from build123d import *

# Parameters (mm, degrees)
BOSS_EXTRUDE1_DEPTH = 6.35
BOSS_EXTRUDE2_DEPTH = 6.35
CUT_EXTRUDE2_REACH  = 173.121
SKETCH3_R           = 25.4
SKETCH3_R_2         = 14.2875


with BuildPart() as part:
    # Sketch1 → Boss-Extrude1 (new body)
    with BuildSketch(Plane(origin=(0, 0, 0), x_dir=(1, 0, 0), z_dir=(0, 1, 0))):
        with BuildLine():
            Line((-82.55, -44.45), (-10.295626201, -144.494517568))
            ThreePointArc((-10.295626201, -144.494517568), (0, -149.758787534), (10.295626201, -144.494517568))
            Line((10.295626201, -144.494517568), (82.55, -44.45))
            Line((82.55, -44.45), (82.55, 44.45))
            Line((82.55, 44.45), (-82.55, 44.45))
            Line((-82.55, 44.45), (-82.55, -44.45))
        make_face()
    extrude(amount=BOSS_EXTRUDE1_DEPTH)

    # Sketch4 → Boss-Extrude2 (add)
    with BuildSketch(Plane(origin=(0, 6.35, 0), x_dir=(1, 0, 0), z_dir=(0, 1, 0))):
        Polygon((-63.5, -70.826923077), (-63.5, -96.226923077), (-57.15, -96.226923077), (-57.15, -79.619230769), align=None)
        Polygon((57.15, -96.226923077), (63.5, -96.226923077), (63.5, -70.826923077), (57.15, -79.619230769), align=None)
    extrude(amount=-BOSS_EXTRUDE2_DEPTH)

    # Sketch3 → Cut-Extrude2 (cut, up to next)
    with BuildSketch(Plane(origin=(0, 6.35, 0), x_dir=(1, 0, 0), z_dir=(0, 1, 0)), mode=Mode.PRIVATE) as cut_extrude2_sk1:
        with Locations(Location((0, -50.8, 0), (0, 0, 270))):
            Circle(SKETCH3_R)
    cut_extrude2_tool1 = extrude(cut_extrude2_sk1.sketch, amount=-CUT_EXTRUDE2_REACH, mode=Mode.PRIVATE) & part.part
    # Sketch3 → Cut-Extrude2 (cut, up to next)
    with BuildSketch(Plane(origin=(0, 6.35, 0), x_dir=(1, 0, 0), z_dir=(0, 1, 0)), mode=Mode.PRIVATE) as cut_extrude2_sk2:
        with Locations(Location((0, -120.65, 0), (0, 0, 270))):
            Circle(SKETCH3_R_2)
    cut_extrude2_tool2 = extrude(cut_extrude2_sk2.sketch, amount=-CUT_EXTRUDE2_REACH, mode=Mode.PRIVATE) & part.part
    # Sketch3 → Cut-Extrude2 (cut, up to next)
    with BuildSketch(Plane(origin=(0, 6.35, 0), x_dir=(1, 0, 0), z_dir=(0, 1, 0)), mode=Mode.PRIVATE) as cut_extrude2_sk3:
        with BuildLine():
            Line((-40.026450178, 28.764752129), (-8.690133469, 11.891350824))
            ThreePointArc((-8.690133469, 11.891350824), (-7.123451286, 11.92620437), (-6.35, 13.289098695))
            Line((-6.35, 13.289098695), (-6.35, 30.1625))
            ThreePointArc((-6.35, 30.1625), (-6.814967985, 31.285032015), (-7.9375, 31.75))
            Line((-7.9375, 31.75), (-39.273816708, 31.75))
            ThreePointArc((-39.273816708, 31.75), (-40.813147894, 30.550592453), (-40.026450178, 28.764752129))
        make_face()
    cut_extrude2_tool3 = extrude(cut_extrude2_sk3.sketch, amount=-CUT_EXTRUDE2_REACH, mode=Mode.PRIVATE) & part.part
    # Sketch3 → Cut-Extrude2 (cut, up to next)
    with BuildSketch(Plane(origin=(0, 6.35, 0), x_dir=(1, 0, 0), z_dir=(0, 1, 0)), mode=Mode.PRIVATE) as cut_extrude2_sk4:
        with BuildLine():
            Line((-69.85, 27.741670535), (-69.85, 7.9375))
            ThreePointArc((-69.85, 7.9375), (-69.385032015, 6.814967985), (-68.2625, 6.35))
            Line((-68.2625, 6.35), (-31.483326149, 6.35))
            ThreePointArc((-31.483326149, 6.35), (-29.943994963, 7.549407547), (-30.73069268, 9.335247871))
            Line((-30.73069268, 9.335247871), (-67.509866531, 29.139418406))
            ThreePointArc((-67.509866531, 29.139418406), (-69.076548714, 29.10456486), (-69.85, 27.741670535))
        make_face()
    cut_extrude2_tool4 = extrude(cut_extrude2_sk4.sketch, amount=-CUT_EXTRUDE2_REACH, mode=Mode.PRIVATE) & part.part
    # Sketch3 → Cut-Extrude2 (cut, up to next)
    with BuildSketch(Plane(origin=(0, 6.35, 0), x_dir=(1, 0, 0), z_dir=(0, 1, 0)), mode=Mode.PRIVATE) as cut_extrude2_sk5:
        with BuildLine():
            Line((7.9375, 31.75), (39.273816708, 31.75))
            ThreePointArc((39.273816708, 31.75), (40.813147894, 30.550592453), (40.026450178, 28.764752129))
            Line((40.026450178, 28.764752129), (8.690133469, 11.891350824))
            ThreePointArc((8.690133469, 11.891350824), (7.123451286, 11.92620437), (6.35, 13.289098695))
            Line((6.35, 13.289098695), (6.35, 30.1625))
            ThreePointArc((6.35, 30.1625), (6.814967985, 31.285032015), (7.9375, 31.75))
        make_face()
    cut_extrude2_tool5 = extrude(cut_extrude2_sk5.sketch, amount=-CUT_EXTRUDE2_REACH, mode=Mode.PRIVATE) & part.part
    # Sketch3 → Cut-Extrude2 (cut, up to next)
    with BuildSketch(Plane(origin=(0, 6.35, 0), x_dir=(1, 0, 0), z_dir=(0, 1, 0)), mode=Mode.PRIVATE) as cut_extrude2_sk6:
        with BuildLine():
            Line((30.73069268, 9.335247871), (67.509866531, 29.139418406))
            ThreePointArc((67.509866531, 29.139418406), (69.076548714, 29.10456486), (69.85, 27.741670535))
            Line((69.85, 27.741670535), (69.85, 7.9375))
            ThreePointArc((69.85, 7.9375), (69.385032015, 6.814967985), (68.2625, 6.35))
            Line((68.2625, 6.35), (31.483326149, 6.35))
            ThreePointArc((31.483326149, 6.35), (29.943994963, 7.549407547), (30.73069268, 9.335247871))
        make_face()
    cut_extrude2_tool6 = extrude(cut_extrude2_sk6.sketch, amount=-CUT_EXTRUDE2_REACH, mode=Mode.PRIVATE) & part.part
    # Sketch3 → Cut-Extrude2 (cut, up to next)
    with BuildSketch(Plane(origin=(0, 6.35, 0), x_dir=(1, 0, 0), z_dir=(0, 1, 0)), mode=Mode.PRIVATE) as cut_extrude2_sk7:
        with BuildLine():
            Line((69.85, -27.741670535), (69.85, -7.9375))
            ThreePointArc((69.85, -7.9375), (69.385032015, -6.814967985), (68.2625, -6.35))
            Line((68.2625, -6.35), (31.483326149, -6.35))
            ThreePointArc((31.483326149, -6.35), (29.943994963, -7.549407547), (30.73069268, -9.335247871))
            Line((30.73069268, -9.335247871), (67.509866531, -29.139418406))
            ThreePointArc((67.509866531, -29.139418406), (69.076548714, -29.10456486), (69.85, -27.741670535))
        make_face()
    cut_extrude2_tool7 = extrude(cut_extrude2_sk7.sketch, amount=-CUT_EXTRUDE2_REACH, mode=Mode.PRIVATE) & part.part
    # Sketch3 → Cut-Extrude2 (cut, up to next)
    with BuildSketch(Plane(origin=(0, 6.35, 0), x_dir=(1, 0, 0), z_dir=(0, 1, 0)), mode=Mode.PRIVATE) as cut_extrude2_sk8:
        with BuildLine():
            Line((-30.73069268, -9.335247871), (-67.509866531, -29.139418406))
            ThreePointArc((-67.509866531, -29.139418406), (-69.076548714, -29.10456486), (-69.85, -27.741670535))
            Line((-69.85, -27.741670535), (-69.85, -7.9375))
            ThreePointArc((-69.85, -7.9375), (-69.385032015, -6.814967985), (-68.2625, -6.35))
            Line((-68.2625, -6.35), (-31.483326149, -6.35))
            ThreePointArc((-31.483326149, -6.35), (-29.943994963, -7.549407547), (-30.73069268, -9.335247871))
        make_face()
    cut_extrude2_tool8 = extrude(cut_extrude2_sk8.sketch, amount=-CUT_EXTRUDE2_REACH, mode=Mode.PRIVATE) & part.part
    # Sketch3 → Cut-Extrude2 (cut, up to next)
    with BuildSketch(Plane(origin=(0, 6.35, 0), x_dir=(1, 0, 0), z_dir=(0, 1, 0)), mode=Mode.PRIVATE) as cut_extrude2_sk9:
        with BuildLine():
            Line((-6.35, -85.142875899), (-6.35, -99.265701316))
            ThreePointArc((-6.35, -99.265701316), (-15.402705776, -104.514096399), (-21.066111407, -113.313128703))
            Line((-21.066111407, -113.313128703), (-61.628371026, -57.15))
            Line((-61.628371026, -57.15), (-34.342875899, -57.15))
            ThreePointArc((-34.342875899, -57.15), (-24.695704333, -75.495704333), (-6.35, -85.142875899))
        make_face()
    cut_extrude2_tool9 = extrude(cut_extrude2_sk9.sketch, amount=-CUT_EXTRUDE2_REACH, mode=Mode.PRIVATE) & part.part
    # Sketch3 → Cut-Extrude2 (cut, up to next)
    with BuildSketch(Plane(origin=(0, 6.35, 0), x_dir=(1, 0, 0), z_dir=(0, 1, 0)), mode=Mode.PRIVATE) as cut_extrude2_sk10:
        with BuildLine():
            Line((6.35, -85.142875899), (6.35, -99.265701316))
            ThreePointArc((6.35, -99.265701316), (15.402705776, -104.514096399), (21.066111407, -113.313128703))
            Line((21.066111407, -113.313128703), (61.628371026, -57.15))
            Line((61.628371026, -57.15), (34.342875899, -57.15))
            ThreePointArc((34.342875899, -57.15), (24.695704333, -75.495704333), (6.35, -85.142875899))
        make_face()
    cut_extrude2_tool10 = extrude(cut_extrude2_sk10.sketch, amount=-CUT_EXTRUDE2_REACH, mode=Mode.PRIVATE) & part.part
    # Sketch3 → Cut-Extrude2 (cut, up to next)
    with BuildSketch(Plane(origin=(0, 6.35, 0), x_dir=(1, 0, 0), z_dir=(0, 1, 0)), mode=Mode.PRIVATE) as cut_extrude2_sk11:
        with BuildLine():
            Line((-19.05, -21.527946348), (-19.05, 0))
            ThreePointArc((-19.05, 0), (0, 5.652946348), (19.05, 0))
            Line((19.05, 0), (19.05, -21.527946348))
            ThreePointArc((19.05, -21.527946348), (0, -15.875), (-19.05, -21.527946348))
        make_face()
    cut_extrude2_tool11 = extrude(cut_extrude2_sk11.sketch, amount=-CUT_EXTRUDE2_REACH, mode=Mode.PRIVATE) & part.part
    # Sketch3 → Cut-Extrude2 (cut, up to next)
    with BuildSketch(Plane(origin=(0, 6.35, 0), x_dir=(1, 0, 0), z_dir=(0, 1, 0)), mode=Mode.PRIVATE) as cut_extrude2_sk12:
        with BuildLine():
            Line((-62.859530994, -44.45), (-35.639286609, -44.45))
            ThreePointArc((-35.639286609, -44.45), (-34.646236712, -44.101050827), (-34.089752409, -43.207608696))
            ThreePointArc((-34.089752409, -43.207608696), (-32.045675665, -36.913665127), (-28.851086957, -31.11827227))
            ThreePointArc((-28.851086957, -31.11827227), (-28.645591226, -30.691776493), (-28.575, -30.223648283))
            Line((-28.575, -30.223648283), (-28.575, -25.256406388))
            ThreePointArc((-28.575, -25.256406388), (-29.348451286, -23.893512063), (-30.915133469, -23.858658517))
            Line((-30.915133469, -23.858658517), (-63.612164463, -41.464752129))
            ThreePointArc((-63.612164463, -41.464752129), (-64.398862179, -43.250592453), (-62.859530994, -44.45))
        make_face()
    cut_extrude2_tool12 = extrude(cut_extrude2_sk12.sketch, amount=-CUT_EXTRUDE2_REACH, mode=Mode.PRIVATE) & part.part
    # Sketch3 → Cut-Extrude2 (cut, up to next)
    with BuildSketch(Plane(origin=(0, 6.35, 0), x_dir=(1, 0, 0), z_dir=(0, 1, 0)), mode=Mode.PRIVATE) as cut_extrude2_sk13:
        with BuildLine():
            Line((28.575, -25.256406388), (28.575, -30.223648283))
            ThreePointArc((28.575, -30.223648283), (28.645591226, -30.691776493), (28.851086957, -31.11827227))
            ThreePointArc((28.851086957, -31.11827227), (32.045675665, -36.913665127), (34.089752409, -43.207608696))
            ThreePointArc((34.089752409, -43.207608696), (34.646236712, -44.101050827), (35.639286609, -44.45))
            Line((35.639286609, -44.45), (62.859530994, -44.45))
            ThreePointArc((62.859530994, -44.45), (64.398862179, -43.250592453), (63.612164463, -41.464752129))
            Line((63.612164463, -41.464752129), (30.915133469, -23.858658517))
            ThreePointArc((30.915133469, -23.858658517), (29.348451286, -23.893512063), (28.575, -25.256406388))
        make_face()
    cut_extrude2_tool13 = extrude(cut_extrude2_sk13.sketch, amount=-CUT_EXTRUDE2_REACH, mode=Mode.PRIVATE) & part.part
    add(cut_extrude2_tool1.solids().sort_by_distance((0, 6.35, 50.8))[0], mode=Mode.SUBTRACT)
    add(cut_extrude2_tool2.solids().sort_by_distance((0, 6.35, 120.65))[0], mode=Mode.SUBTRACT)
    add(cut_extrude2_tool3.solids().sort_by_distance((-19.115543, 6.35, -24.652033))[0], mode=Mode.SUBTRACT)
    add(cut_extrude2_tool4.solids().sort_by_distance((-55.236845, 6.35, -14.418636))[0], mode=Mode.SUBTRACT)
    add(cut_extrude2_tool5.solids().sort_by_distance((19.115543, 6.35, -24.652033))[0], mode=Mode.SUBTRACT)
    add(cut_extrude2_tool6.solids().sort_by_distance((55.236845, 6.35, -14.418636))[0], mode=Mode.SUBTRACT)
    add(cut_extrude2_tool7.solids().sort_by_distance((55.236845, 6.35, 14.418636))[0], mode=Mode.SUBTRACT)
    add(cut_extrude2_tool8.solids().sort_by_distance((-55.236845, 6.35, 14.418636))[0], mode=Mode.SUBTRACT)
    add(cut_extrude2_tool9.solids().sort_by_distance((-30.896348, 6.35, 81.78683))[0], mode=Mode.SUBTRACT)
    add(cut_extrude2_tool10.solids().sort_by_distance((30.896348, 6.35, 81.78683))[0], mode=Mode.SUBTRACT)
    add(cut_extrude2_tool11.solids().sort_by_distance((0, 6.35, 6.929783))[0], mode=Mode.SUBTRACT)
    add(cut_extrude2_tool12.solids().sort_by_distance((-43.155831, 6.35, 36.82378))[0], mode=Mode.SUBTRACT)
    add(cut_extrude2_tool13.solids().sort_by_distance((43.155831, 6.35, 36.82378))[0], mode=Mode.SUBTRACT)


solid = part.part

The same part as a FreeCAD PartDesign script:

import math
import FreeCAD as App
import Part
import Sketcher

V = App.Vector
Q = App.Units.Quantity


def add_polygon(sketch, points):
    """Adds a closed chain of lines whose ends are joined by coincident constraints."""
    first, n = sketch.GeometryCount, len(points)
    for a, b in zip(points, points[1:] + points[:1]):
        sketch.addGeometry(Part.LineSegment(App.Vector(*a, 0), App.Vector(*b, 0)), False)
    for i in range(n):
        sketch.addConstraint(Sketcher.Constraint("Coincident", first + i, 2, first + (i + 1) % n, 1))

doc = App.newDocument("Part")
body = doc.addObject("PartDesign::Body", "Body")

# Sketch on XZ plane
sketch1 = body.newObject("Sketcher::SketchObject", "Sketch")
sketch1.AttachmentSupport = (doc.getObject("XZ_Plane"), [""])
sketch1.MapMode = "FlatFace"
sketch1.addGeometry(Part.LineSegment(V(-83, 44, 0), V(-10, 144, 0)), False)
sketch1.addGeometry(Part.ArcOfCircle(Part.Circle(V(0, 137, 0), V(0, 0, 1), 13), math.radians(36), math.radians(144)), False)
sketch1.addGeometry(Part.LineSegment(V(10, 144, 0), V(83, 44, 0)), False)
sketch1.addGeometry(Part.LineSegment(V(83, 44, 0), V(83, -44, 0)), False)
sketch1.addGeometry(Part.LineSegment(V(83, -44, 0), V(-83, -44, 0)), False)
sketch1.addGeometry(Part.LineSegment(V(-83, -44, 0), V(-83, 44, 0)), False)
sketch1.addConstraint(Sketcher.Constraint("Tangent", 0, 2, 1, 2))
sketch1.addConstraint(Sketcher.Constraint("Tangent", 1, 1, 2, 1))
sketch1.addConstraint(Sketcher.Constraint("Coincident", 2, 2, 3, 1))
sketch1.addConstraint(Sketcher.Constraint("Coincident", 3, 2, 4, 1))
sketch1.addConstraint(Sketcher.Constraint("Coincident", 4, 2, 5, 1))
sketch1.addConstraint(Sketcher.Constraint("Coincident", 5, 2, 0, 1))
sketch1.addConstraint(Sketcher.Constraint("Vertical", 3))
sketch1.addConstraint(Sketcher.Constraint("Horizontal", 4))
sketch1.addConstraint(Sketcher.Constraint("Vertical", 5))
sketch1.addConstraint(Sketcher.Constraint("Symmetric", 2, 2, 4, 2, -1, 1))
sketch1.addConstraint(Sketcher.Constraint("Symmetric", 0, 2, 1, 1, -2))
sketch1.addConstraint(Sketcher.Constraint("Radius", 1, Q("0.5 in")))
sketch1.addConstraint(Sketcher.Constraint("DistanceX", 4, 2, 4, 1, Q("6.5 in")))
sketch1.addConstraint(Sketcher.Constraint("DistanceY", 3, 2, 3, 1, Q("3.5 in")))
sketch1.addConstraint(Sketcher.Constraint("DistanceY", 1, 3, 0, 2, 7.43573))
pad1 = body.newObject("PartDesign::Pad", "Pad")
pad1.Profile = sketch1
pad1.Length = Q("0.25 in")
pad1.Reversed = True

# Sketch on XZ plane
sketch2 = body.newObject("Sketcher::SketchObject", "Sketch001")
sketch2.AttachmentSupport = (doc.getObject("XZ_Plane"), [""])
sketch2.MapMode = "FlatFace"
sketch2.AttachmentOffset = App.Placement(V(0, 0, -0.25 * 25.4), App.Rotation())
add_polygon(sketch2, [(-64, 71), (-64, 96), (-57, 96), (-57, 80)])  # lines 0-3
add_polygon(sketch2, [(57, 96), (64, 96), (64, 71), (57, 80)])  # lines 4-7
sketch2.addConstraint(Sketcher.Constraint("Vertical", 0))
sketch2.addConstraint(Sketcher.Constraint("Horizontal", 1))
sketch2.addConstraint(Sketcher.Constraint("Vertical", 2))
sketch2.addConstraint(Sketcher.Constraint("Horizontal", 4))
sketch2.addConstraint(Sketcher.Constraint("Vertical", 5))
sketch2.addConstraint(Sketcher.Constraint("Vertical", 7))
sketch2.addConstraint(Sketcher.Constraint("Symmetric", 0, 2, 4, 2, -2))
sketch2.addConstraint(Sketcher.Constraint("Symmetric", 2, 2, 6, 2, -2))
sketch2.addConstraint(Sketcher.Constraint("Horizontal", 3, 2, 5, 2))
sketch2.addConstraint(Sketcher.Constraint("DistanceY", 0, 1, 0, 2, Q("1 in")))
sketch2.addConstraint(Sketcher.Constraint("DistanceX", 0, 2, 4, 2, Q("5 in")))
sketch2.addConstraint(Sketcher.Constraint("DistanceX", 1, 1, 1, 2, Q("0.25 in")))
sketch2.addConstraint(Sketcher.Constraint("DistanceY", 2, 2, 2, 1, 16.607692))
sketch2.addConstraint(Sketcher.Constraint("DistanceY", -1, 1, 2, 2, 79.619231))
pad2 = body.newObject("PartDesign::Pad", "Pad001")
pad2.Profile = sketch2
pad2.Length = Q("0.25 in")

# Sketch on XZ plane
sketch3 = body.newObject("Sketcher::SketchObject", "Sketch002")
sketch3.AttachmentSupport = (doc.getObject("XZ_Plane"), [""])
sketch3.MapMode = "FlatFace"
sketch3.AttachmentOffset = App.Placement(V(0, 0, -0.25 * 25.4), App.Rotation())
sketch3.addGeometry(Part.Circle(V(0, 51, 0), V(0, 0, 1), 25), False)
sketch3.addConstraint(Sketcher.Constraint("PointOnObject", 0, 3, -2))
sketch3.addConstraint(Sketcher.Constraint("Diameter", 0, Q("2 in")))
sketch3.addConstraint(Sketcher.Constraint("DistanceY", -1, 1, 0, 3, Q("2 in")))
pocket1 = body.newObject("PartDesign::Pocket", "Pocket")
pocket1.Profile = sketch3
pocket1.Type = "UpToFirst"
pocket1.Reversed = True

# Sketch on XZ plane
sketch4 = body.newObject("Sketcher::SketchObject", "Sketch003")
sketch4.AttachmentSupport = (doc.getObject("XZ_Plane"), [""])
sketch4.MapMode = "FlatFace"
sketch4.AttachmentOffset = App.Placement(V(0, 0, -0.25 * 25.4), App.Rotation())
sketch4.addGeometry(Part.Circle(V(0, 121, 0), V(0, 0, 1), 14), False)
sketch4.addConstraint(Sketcher.Constraint("PointOnObject", 0, 3, -2))
sketch4.addConstraint(Sketcher.Constraint("Diameter", 0, Q("1.125 in")))
sketch4.addConstraint(Sketcher.Constraint("DistanceY", -1, 1, 0, 3, Q("4.75 in")))
pocket2 = body.newObject("PartDesign::Pocket", "Pocket001")
pocket2.Profile = sketch4
pocket2.Type = "UpToFirst"
pocket2.Reversed = True

# Sketch on XZ plane
sketch5 = body.newObject("Sketcher::SketchObject", "Sketch004")
sketch5.AttachmentSupport = (doc.getObject("XZ_Plane"), [""])
sketch5.MapMode = "FlatFace"
sketch5.AttachmentOffset = App.Placement(V(0, 0, -0.25 * 25.4), App.Rotation())
sketch5.addGeometry(Part.LineSegment(V(-40, -28.8, 0), V(-8.7, -11.9, 0)), False)
sketch5.addGeometry(Part.ArcOfCircle(Part.Circle(V(-7.9, -13.3, 0), V(0, 0, 1), 1.6), math.radians(0), math.radians(118)), False)
sketch5.addGeometry(Part.LineSegment(V(-6.3, -13.3, 0), V(-6.3, -30.2, 0)), False)
sketch5.addGeometry(Part.ArcOfCircle(Part.Circle(V(-7.9, -30.2, 0), V(0, 0, 1), 1.6), math.radians(-90), math.radians(0)), False)
sketch5.addGeometry(Part.LineSegment(V(-7.9, -31.8, 0), V(-39.3, -31.8, 0)), False)
sketch5.addGeometry(Part.ArcOfCircle(Part.Circle(V(-39.3, -30.2, 0), V(0, 0, 1), 1.6), math.radians(118), math.radians(270)), False)
sketch5.addConstraint(Sketcher.Constraint("Tangent", 0, 2, 1, 2))
sketch5.addConstraint(Sketcher.Constraint("Tangent", 1, 1, 2, 1))
sketch5.addConstraint(Sketcher.Constraint("Tangent", 2, 2, 3, 2))
sketch5.addConstraint(Sketcher.Constraint("Tangent", 3, 1, 4, 1))
sketch5.addConstraint(Sketcher.Constraint("Tangent", 4, 2, 5, 2))
sketch5.addConstraint(Sketcher.Constraint("Tangent", 5, 1, 0, 1))
sketch5.addConstraint(Sketcher.Constraint("Vertical", 2))
sketch5.addConstraint(Sketcher.Constraint("Horizontal", 4))
sketch5.addConstraint(Sketcher.Constraint("Equal", 1, 3))
sketch5.addConstraint(Sketcher.Constraint("Equal", 3, 5))
sketch5.addConstraint(Sketcher.Constraint("Radius", 1, Q("0.0625 in")))
sketch5.addConstraint(Sketcher.Constraint("DistanceX", 1, 1, -1, 1, Q("0.25 in")))
sketch5.addConstraint(Sketcher.Constraint("DistanceY", 3, 1, -1, 1, Q("1.25 in")))
sketch5.addConstraint(Sketcher.Constraint("DistanceY", 2, 2, 2, 1, 16.873401))
sketch5.addConstraint(Sketcher.Constraint("DistanceX", 4, 2, 4, 1, 31.336317))
pocket3 = body.newObject("PartDesign::Pocket", "Pocket002")
pocket3.Profile = sketch5
pocket3.Type = "UpToFirst"
pocket3.Reversed = True

# Sketch on XZ plane
sketch6 = body.newObject("Sketcher::SketchObject", "Sketch005")
sketch6.AttachmentSupport = (doc.getObject("XZ_Plane"), [""])
sketch6.MapMode = "FlatFace"
sketch6.AttachmentOffset = App.Placement(V(0, 0, -0.25 * 25.4), App.Rotation())
sketch6.addGeometry(Part.LineSegment(V(-69.8, -27.7, 0), V(-69.8, -7.9, 0)), False)
sketch6.addGeometry(Part.ArcOfCircle(Part.Circle(V(-68.3, -7.9, 0), V(0, 0, 1), 1.6), math.radians(90), math.radians(180)), False)
sketch6.addGeometry(Part.LineSegment(V(-68.3, -6.3, 0), V(-31.5, -6.3, 0)), False)
sketch6.addGeometry(Part.ArcOfCircle(Part.Circle(V(-31.5, -7.9, 0), V(0, 0, 1), 1.6), math.radians(-62), math.radians(90)), False)
sketch6.addGeometry(Part.LineSegment(V(-30.7, -9.3, 0), V(-67.5, -29.1, 0)), False)
sketch6.addGeometry(Part.ArcOfCircle(Part.Circle(V(-68.3, -27.7, 0), V(0, 0, 1), 1.6), math.radians(180), math.radians(298)), False)
sketch6.addConstraint(Sketcher.Constraint("Tangent", 0, 2, 1, 2))
sketch6.addConstraint(Sketcher.Constraint("Tangent", 1, 1, 2, 1))
sketch6.addConstraint(Sketcher.Constraint("Tangent", 2, 2, 3, 2))
sketch6.addConstraint(Sketcher.Constraint("Tangent", 3, 1, 4, 1))
sketch6.addConstraint(Sketcher.Constraint("Tangent", 4, 2, 5, 2))
sketch6.addConstraint(Sketcher.Constraint("Tangent", 5, 1, 0, 1))
sketch6.addConstraint(Sketcher.Constraint("Vertical", 0))
sketch6.addConstraint(Sketcher.Constraint("Horizontal", 2))
sketch6.addConstraint(Sketcher.Constraint("Equal", 1, 3))
sketch6.addConstraint(Sketcher.Constraint("Equal", 3, 5))
sketch6.addConstraint(Sketcher.Constraint("Radius", 1, Q("0.0625 in")))
sketch6.addConstraint(Sketcher.Constraint("DistanceX", 0, 2, -1, 1, Q("2.75 in")))
sketch6.addConstraint(Sketcher.Constraint("DistanceY", 1, 1, -1, 1, Q("0.25 in")))
sketch6.addConstraint(Sketcher.Constraint("DistanceY", 0, 1, 0, 2, 19.804171))
sketch6.addConstraint(Sketcher.Constraint("DistanceX", 2, 1, 2, 2, 36.779174))
pocket4 = body.newObject("PartDesign::Pocket", "Pocket003")
pocket4.Profile = sketch6
pocket4.Type = "UpToFirst"
pocket4.Reversed = True

# Sketch on XZ plane
sketch7 = body.newObject("Sketcher::SketchObject", "Sketch006")
sketch7.AttachmentSupport = (doc.getObject("XZ_Plane"), [""])
sketch7.MapMode = "FlatFace"
sketch7.AttachmentOffset = App.Placement(V(0, 0, -0.25 * 25.4), App.Rotation())
sketch7.addGeometry(Part.LineSegment(V(39.3, -31.8, 0), V(7.9, -31.8, 0)), False)
sketch7.addGeometry(Part.ArcOfCircle(Part.Circle(V(7.9, -30.2, 0), V(0, 0, 1), 1.6), math.radians(180), math.radians(270)), False)
sketch7.addGeometry(Part.LineSegment(V(6.3, -30.2, 0), V(6.3, -13.3, 0)), False)
sketch7.addGeometry(Part.ArcOfCircle(Part.Circle(V(7.9, -13.3, 0), V(0, 0, 1), 1.6), math.radians(62), math.radians(180)), False)
sketch7.addGeometry(Part.LineSegment(V(8.7, -11.9, 0), V(40, -28.8, 0)), False)
sketch7.addGeometry(Part.ArcOfCircle(Part.Circle(V(39.3, -30.2, 0), V(0, 0, 1), 1.6), math.radians(-90), math.radians(62)), False)
sketch7.addConstraint(Sketcher.Constraint("Tangent", 0, 2, 1, 2))
sketch7.addConstraint(Sketcher.Constraint("Tangent", 1, 1, 2, 1))
sketch7.addConstraint(Sketcher.Constraint("Tangent", 2, 2, 3, 2))
sketch7.addConstraint(Sketcher.Constraint("Tangent", 3, 1, 4, 1))
sketch7.addConstraint(Sketcher.Constraint("Tangent", 4, 2, 5, 2))
sketch7.addConstraint(Sketcher.Constraint("Tangent", 5, 1, 0, 1))
sketch7.addConstraint(Sketcher.Constraint("Horizontal", 0))
sketch7.addConstraint(Sketcher.Constraint("Vertical", 2))
sketch7.addConstraint(Sketcher.Constraint("Equal", 1, 3))
sketch7.addConstraint(Sketcher.Constraint("Equal", 3, 5))
sketch7.addConstraint(Sketcher.Constraint("Radius", 1, Q("0.0625 in")))
sketch7.addConstraint(Sketcher.Constraint("DistanceY", 0, 2, -1, 1, Q("1.25 in")))
sketch7.addConstraint(Sketcher.Constraint("DistanceX", -1, 1, 1, 1, Q("0.25 in")))
sketch7.addConstraint(Sketcher.Constraint("DistanceY", 2, 1, 2, 2, 16.873401))
sketch7.addConstraint(Sketcher.Constraint("DistanceX", 0, 2, 0, 1, 31.336317))
pocket5 = body.newObject("PartDesign::Pocket", "Pocket004")
pocket5.Profile = sketch7
pocket5.Type = "UpToFirst"
pocket5.Reversed = True

# Sketch on XZ plane
sketch8 = body.newObject("Sketcher::SketchObject", "Sketch007")
sketch8.AttachmentSupport = (doc.getObject("XZ_Plane"), [""])
sketch8.MapMode = "FlatFace"
sketch8.AttachmentOffset = App.Placement(V(0, 0, -0.25 * 25.4), App.Rotation())
sketch8.addGeometry(Part.LineSegment(V(67.5, -29.1, 0), V(30.7, -9.3, 0)), False)
sketch8.addGeometry(Part.ArcOfCircle(Part.Circle(V(31.5, -7.9, 0), V(0, 0, 1), 1.6), math.radians(90), math.radians(242)), False)
sketch8.addGeometry(Part.LineSegment(V(31.5, -6.3, 0), V(68.3, -6.3, 0)), False)
sketch8.addGeometry(Part.ArcOfCircle(Part.Circle(V(68.3, -7.9, 0), V(0, 0, 1), 1.6), math.radians(0), math.radians(90)), False)
sketch8.addGeometry(Part.LineSegment(V(69.8, -7.9, 0), V(69.8, -27.7, 0)), False)
sketch8.addGeometry(Part.ArcOfCircle(Part.Circle(V(68.3, -27.7, 0), V(0, 0, 1), 1.6), math.radians(-118), math.radians(0)), False)
sketch8.addConstraint(Sketcher.Constraint("Tangent", 0, 2, 1, 2))
sketch8.addConstraint(Sketcher.Constraint("Tangent", 1, 1, 2, 1))
sketch8.addConstraint(Sketcher.Constraint("Tangent", 2, 2, 3, 2))
sketch8.addConstraint(Sketcher.Constraint("Tangent", 3, 1, 4, 1))
sketch8.addConstraint(Sketcher.Constraint("Tangent", 4, 2, 5, 2))
sketch8.addConstraint(Sketcher.Constraint("Tangent", 5, 1, 0, 1))
sketch8.addConstraint(Sketcher.Constraint("Horizontal", 2))
sketch8.addConstraint(Sketcher.Constraint("Vertical", 4))
sketch8.addConstraint(Sketcher.Constraint("Equal", 1, 3))
sketch8.addConstraint(Sketcher.Constraint("Equal", 3, 5))
sketch8.addConstraint(Sketcher.Constraint("Radius", 1, Q("0.0625 in")))
sketch8.addConstraint(Sketcher.Constraint("DistanceY", 1, 1, -1, 1, Q("0.25 in")))
sketch8.addConstraint(Sketcher.Constraint("DistanceX", -1, 1, 3, 1, Q("2.75 in")))
sketch8.addConstraint(Sketcher.Constraint("DistanceY", 4, 2, 4, 1, 19.804171))
sketch8.addConstraint(Sketcher.Constraint("DistanceX", 2, 1, 2, 2, 36.779174))
pocket6 = body.newObject("PartDesign::Pocket", "Pocket005")
pocket6.Profile = sketch8
pocket6.Type = "UpToFirst"
pocket6.Reversed = True

# Sketch on XZ plane
sketch9 = body.newObject("Sketcher::SketchObject", "Sketch008")
sketch9.AttachmentSupport = (doc.getObject("XZ_Plane"), [""])
sketch9.MapMode = "FlatFace"
sketch9.AttachmentOffset = App.Placement(V(0, 0, -0.25 * 25.4), App.Rotation())
sketch9.addGeometry(Part.LineSegment(V(69.8, 27.7, 0), V(69.8, 7.9, 0)), False)
sketch9.addGeometry(Part.ArcOfCircle(Part.Circle(V(68.3, 7.9, 0), V(0, 0, 1), 1.6), math.radians(-90), math.radians(0)), False)
sketch9.addGeometry(Part.LineSegment(V(68.3, 6.3, 0), V(31.5, 6.3, 0)), False)
sketch9.addGeometry(Part.ArcOfCircle(Part.Circle(V(31.5, 7.9, 0), V(0, 0, 1), 1.6), math.radians(118), math.radians(270)), False)
sketch9.addGeometry(Part.LineSegment(V(30.7, 9.3, 0), V(67.5, 29.1, 0)), False)
sketch9.addGeometry(Part.ArcOfCircle(Part.Circle(V(68.3, 27.7, 0), V(0, 0, 1), 1.6), math.radians(0), math.radians(118)), False)
sketch9.addConstraint(Sketcher.Constraint("Tangent", 0, 2, 1, 2))
sketch9.addConstraint(Sketcher.Constraint("Tangent", 1, 1, 2, 1))
sketch9.addConstraint(Sketcher.Constraint("Tangent", 2, 2, 3, 2))
sketch9.addConstraint(Sketcher.Constraint("Tangent", 3, 1, 4, 1))
sketch9.addConstraint(Sketcher.Constraint("Tangent", 4, 2, 5, 2))
sketch9.addConstraint(Sketcher.Constraint("Tangent", 5, 1, 0, 1))
sketch9.addConstraint(Sketcher.Constraint("Vertical", 0))
sketch9.addConstraint(Sketcher.Constraint("Horizontal", 2))
sketch9.addConstraint(Sketcher.Constraint("Equal", 1, 3))
sketch9.addConstraint(Sketcher.Constraint("Equal", 3, 5))
sketch9.addConstraint(Sketcher.Constraint("Radius", 1, Q("0.0625 in")))
sketch9.addConstraint(Sketcher.Constraint("DistanceX", -1, 1, 0, 2, Q("2.75 in")))
sketch9.addConstraint(Sketcher.Constraint("DistanceY", -1, 1, 1, 1, Q("0.25 in")))
sketch9.addConstraint(Sketcher.Constraint("DistanceY", 0, 2, 0, 1, 19.804171))
sketch9.addConstraint(Sketcher.Constraint("DistanceX", 2, 2, 2, 1, 36.779174))
pocket7 = body.newObject("PartDesign::Pocket", "Pocket006")
pocket7.Profile = sketch9
pocket7.Type = "UpToFirst"
pocket7.Reversed = True

# Sketch on XZ plane
sketch10 = body.newObject("Sketcher::SketchObject", "Sketch009")
sketch10.AttachmentSupport = (doc.getObject("XZ_Plane"), [""])
sketch10.MapMode = "FlatFace"
sketch10.AttachmentOffset = App.Placement(V(0, 0, -0.25 * 25.4), App.Rotation())
sketch10.addGeometry(Part.LineSegment(V(-67.5, 29.1, 0), V(-30.7, 9.3, 0)), False)
sketch10.addGeometry(Part.ArcOfCircle(Part.Circle(V(-31.5, 7.9, 0), V(0, 0, 1), 1.6), math.radians(-90), math.radians(62)), False)
sketch10.addGeometry(Part.LineSegment(V(-31.5, 6.3, 0), V(-68.3, 6.3, 0)), False)
sketch10.addGeometry(Part.ArcOfCircle(Part.Circle(V(-68.3, 7.9, 0), V(0, 0, 1), 1.6), math.radians(180), math.radians(270)), False)
sketch10.addGeometry(Part.LineSegment(V(-69.8, 7.9, 0), V(-69.8, 27.7, 0)), False)
sketch10.addGeometry(Part.ArcOfCircle(Part.Circle(V(-68.3, 27.7, 0), V(0, 0, 1), 1.6), math.radians(62), math.radians(180)), False)
sketch10.addConstraint(Sketcher.Constraint("Tangent", 0, 2, 1, 2))
sketch10.addConstraint(Sketcher.Constraint("Tangent", 1, 1, 2, 1))
sketch10.addConstraint(Sketcher.Constraint("Tangent", 2, 2, 3, 2))
sketch10.addConstraint(Sketcher.Constraint("Tangent", 3, 1, 4, 1))
sketch10.addConstraint(Sketcher.Constraint("Tangent", 4, 2, 5, 2))
sketch10.addConstraint(Sketcher.Constraint("Tangent", 5, 1, 0, 1))
sketch10.addConstraint(Sketcher.Constraint("Horizontal", 2))
sketch10.addConstraint(Sketcher.Constraint("Vertical", 4))
sketch10.addConstraint(Sketcher.Constraint("Equal", 1, 3))
sketch10.addConstraint(Sketcher.Constraint("Equal", 3, 5))
sketch10.addConstraint(Sketcher.Constraint("Radius", 1, Q("0.0625 in")))
sketch10.addConstraint(Sketcher.Constraint("DistanceY", -1, 1, 1, 1, Q("0.25 in")))
sketch10.addConstraint(Sketcher.Constraint("DistanceX", 3, 1, -1, 1, Q("2.75 in")))
sketch10.addConstraint(Sketcher.Constraint("DistanceY", 4, 1, 4, 2, 19.804171))
sketch10.addConstraint(Sketcher.Constraint("DistanceX", 2, 2, 2, 1, 36.779174))
pocket8 = body.newObject("PartDesign::Pocket", "Pocket007")
pocket8.Profile = sketch10
pocket8.Type = "UpToFirst"
pocket8.Reversed = True

# Sketch on XZ plane
sketch11 = body.newObject("Sketcher::SketchObject", "Sketch010")
sketch11.AttachmentSupport = (doc.getObject("XZ_Plane"), [""])
sketch11.MapMode = "FlatFace"
sketch11.AttachmentOffset = App.Placement(V(0, 0, -0.25 * 25.4), App.Rotation())
sketch11.addGeometry(Part.LineSegment(V(-6, 99, 0), V(-6, 85, 0)), False)
sketch11.addGeometry(Part.ArcOfCircle(Part.Circle(V(0, 51, 0), V(0, 0, 1), 35), math.radians(100), math.radians(170)), False)
sketch11.addGeometry(Part.LineSegment(V(-34, 57, 0), V(-62, 57, 0)), False)
sketch11.addGeometry(Part.LineSegment(V(-62, 57, 0), V(-21, 113, 0)), False)
sketch11.addGeometry(Part.ArcOfCircle(Part.Circle(V(0, 121, 0), V(0, 0, 1), 22), math.radians(-161), math.radians(-107)), False)
sketch11.addConstraint(Sketcher.Constraint("Coincident", 0, 2, 1, 1))
sketch11.addConstraint(Sketcher.Constraint("Coincident", 1, 2, 2, 1))
sketch11.addConstraint(Sketcher.Constraint("Coincident", 2, 2, 3, 1))
sketch11.addConstraint(Sketcher.Constraint("Coincident", 3, 2, 4, 1))
sketch11.addConstraint(Sketcher.Constraint("Coincident", 4, 2, 0, 1))
sketch11.addConstraint(Sketcher.Constraint("Vertical", 0))
sketch11.addConstraint(Sketcher.Constraint("Horizontal", 2))
sketch11.addConstraint(Sketcher.Constraint("PointOnObject", 1, 3, -2))
sketch11.addConstraint(Sketcher.Constraint("PointOnObject", 4, 3, -2))
sketch11.addConstraint(Sketcher.Constraint("DistanceY", -1, 1, 1, 3, Q("2 in")))
sketch11.addConstraint(Sketcher.Constraint("Radius", 1, Q("1.375 in")))
sketch11.addConstraint(Sketcher.Constraint("DistanceY", 1, 2, 4, 3, Q("2.5 in")))
sketch11.addConstraint(Sketcher.Constraint("DistanceY", -1, 1, 4, 3, Q("4.75 in")))
sketch11.addConstraint(Sketcher.Constraint("DistanceX", 0, 2, -1, 1, Q("0.25 in")))
sketch11.addConstraint(Sketcher.Constraint("Radius", 4, 22.30719))
sketch11.addConstraint(Sketcher.Constraint("Distance", 3, 69.279102))
sketch11.addConstraint(Sketcher.Constraint("DistanceX", 2, 2, 2, 1, 27.285495))
pocket9 = body.newObject("PartDesign::Pocket", "Pocket008")
pocket9.Profile = sketch11
pocket9.Type = "UpToFirst"
pocket9.Reversed = True

# Sketch on XZ plane
sketch12 = body.newObject("Sketcher::SketchObject", "Sketch011")
sketch12.AttachmentSupport = (doc.getObject("XZ_Plane"), [""])
sketch12.MapMode = "FlatFace"
sketch12.AttachmentOffset = App.Placement(V(0, 0, -0.25 * 25.4), App.Rotation())
sketch12.addGeometry(Part.LineSegment(V(6, 85, 0), V(6, 99, 0)), False)
sketch12.addGeometry(Part.ArcOfCircle(Part.Circle(V(0, 121, 0), V(0, 0, 1), 22), math.radians(-73), math.radians(-19)), False)
sketch12.addGeometry(Part.LineSegment(V(21, 113, 0), V(62, 57, 0)), False)
sketch12.addGeometry(Part.LineSegment(V(62, 57, 0), V(34, 57, 0)), False)
sketch12.addGeometry(Part.ArcOfCircle(Part.Circle(V(0, 51, 0), V(0, 0, 1), 35), math.radians(10), math.radians(80)), False)
sketch12.addConstraint(Sketcher.Constraint("Coincident", 0, 2, 1, 1))
sketch12.addConstraint(Sketcher.Constraint("Coincident", 1, 2, 2, 1))
sketch12.addConstraint(Sketcher.Constraint("Coincident", 2, 2, 3, 1))
sketch12.addConstraint(Sketcher.Constraint("Coincident", 3, 2, 4, 1))
sketch12.addConstraint(Sketcher.Constraint("Coincident", 4, 2, 0, 1))
sketch12.addConstraint(Sketcher.Constraint("Vertical", 0))
sketch12.addConstraint(Sketcher.Constraint("Horizontal", 3))
sketch12.addConstraint(Sketcher.Constraint("PointOnObject", 1, 3, -2))
sketch12.addConstraint(Sketcher.Constraint("PointOnObject", 4, 3, -2))
sketch12.addConstraint(Sketcher.Constraint("DistanceY", -1, 1, 4, 3, Q("2 in")))
sketch12.addConstraint(Sketcher.Constraint("Radius", 4, Q("1.375 in")))
sketch12.addConstraint(Sketcher.Constraint("DistanceY", 2, 2, 1, 3, Q("2.5 in")))
sketch12.addConstraint(Sketcher.Constraint("DistanceY", -1, 1, 1, 3, Q("4.75 in")))
sketch12.addConstraint(Sketcher.Constraint("DistanceX", -1, 1, 0, 2, Q("0.25 in")))
sketch12.addConstraint(Sketcher.Constraint("Radius", 1, 22.30719))
sketch12.addConstraint(Sketcher.Constraint("Distance", 2, 69.279102))
sketch12.addConstraint(Sketcher.Constraint("DistanceX", 3, 2, 3, 1, 27.285495))
pocket10 = body.newObject("PartDesign::Pocket", "Pocket009")
pocket10.Profile = sketch12
pocket10.Type = "UpToFirst"
pocket10.Reversed = True

# Sketch on XZ plane
sketch13 = body.newObject("Sketcher::SketchObject", "Sketch012")
sketch13.AttachmentSupport = (doc.getObject("XZ_Plane"), [""])
sketch13.MapMode = "FlatFace"
sketch13.AttachmentOffset = App.Placement(V(0, 0, -0.25 * 25.4), App.Rotation())
sketch13.addGeometry(Part.LineSegment(V(-19, 0, 0), V(-19, 22, 0)), False)
sketch13.addGeometry(Part.ArcOfCircle(Part.Circle(V(0, 51, 0), V(0, 0, 1), 35), math.radians(-123), math.radians(-57)), False)
sketch13.addGeometry(Part.LineSegment(V(19, 22, 0), V(19, 0, 0)), False)
sketch13.addGeometry(Part.ArcOfCircle(Part.Circle(V(0, 29, 0), V(0, 0, 1), 35), math.radians(-123), math.radians(-57)), False)
sketch13.addConstraint(Sketcher.Constraint("Coincident", 0, 2, 1, 1))
sketch13.addConstraint(Sketcher.Constraint("Coincident", 1, 2, 2, 1))
sketch13.addConstraint(Sketcher.Constraint("Coincident", 2, 2, 3, 2))
sketch13.addConstraint(Sketcher.Constraint("Coincident", 3, 1, 0, 1))
sketch13.addConstraint(Sketcher.Constraint("Vertical", 0))
sketch13.addConstraint(Sketcher.Constraint("Vertical", 2))
sketch13.addConstraint(Sketcher.Constraint("Equal", 1, 3))
sketch13.addConstraint(Sketcher.Constraint("Symmetric", 2, 2, 3, 1, -1, 1))
sketch13.addConstraint(Sketcher.Constraint("PointOnObject", 1, 3, -2))
sketch13.addConstraint(Sketcher.Constraint("PointOnObject", 3, 3, -2))
sketch13.addConstraint(Sketcher.Constraint("DistanceY", -1, 1, 1, 3, Q("2 in")))
sketch13.addConstraint(Sketcher.Constraint("Radius", 1, Q("1.375 in")))
sketch13.addConstraint(Sketcher.Constraint("DistanceX", 0, 2, 1, 2, Q("1.5 in")))
pocket11 = body.newObject("PartDesign::Pocket", "Pocket010")
pocket11.Profile = sketch13
pocket11.Type = "UpToFirst"
pocket11.Reversed = True

# Sketch on XZ plane
sketch14 = body.newObject("Sketcher::SketchObject", "Sketch013")
sketch14.AttachmentSupport = (doc.getObject("XZ_Plane"), [""])
sketch14.MapMode = "FlatFace"
sketch14.AttachmentOffset = App.Placement(V(0, 0, -0.25 * 25.4), App.Rotation())
sketch14.addGeometry(Part.LineSegment(V(-62.9, 44.5, 0), V(-35.6, 44.5, 0)), False)
sketch14.addGeometry(Part.ArcOfCircle(Part.Circle(V(-35.6, 42.9, 0), V(0, 0, 1), 1.6), math.radians(13), math.radians(90)), False)
sketch14.addGeometry(Part.ArcOfCircle(Part.Circle(V(0, 50.8, 0), V(0, 0, 1), 34.9), math.radians(-167), math.radians(-146)), False)
sketch14.addGeometry(Part.ArcOfCircle(Part.Circle(V(-30.2, 30.2, 0), V(0, 0, 1), 1.6), math.radians(0), math.radians(34)), False)
sketch14.addGeometry(Part.LineSegment(V(-28.6, 30.2, 0), V(-28.6, 25.3, 0)), False)
sketch14.addGeometry(Part.ArcOfCircle(Part.Circle(V(-30.2, 25.3, 0), V(0, 0, 1), 1.6), math.radians(-118), math.radians(0)), False)
sketch14.addGeometry(Part.LineSegment(V(-30.9, 23.9, 0), V(-63.6, 41.5, 0)), False)
sketch14.addGeometry(Part.ArcOfCircle(Part.Circle(V(-62.9, 42.9, 0), V(0, 0, 1), 1.6), math.radians(90), math.radians(242)), False)
sketch14.addConstraint(Sketcher.Constraint("Tangent", 0, 2, 1, 2))
sketch14.addConstraint(Sketcher.Constraint("Tangent", 1, 1, 2, 1))
sketch14.addConstraint(Sketcher.Constraint("Tangent", 2, 2, 3, 2))
sketch14.addConstraint(Sketcher.Constraint("Tangent", 3, 1, 4, 1))
sketch14.addConstraint(Sketcher.Constraint("Tangent", 4, 2, 5, 2))
sketch14.addConstraint(Sketcher.Constraint("Tangent", 5, 1, 6, 1))
sketch14.addConstraint(Sketcher.Constraint("Tangent", 6, 2, 7, 2))
sketch14.addConstraint(Sketcher.Constraint("Tangent", 7, 1, 0, 1))
sketch14.addConstraint(Sketcher.Constraint("Horizontal", 0))
sketch14.addConstraint(Sketcher.Constraint("Vertical", 4))
sketch14.addConstraint(Sketcher.Constraint("Equal", 1, 3))
sketch14.addConstraint(Sketcher.Constraint("Equal", 3, 5))
sketch14.addConstraint(Sketcher.Constraint("Equal", 5, 7))
sketch14.addConstraint(Sketcher.Constraint("PointOnObject", 2, 3, -2))
sketch14.addConstraint(Sketcher.Constraint("DistanceY", -1, 1, 2, 3, Q("2 in")))
sketch14.addConstraint(Sketcher.Constraint("Radius", 1, Q("0.0625 in")))
sketch14.addConstraint(Sketcher.Constraint("Radius", 2, Q("1.375 in")))
sketch14.addConstraint(Sketcher.Constraint("DistanceY", -1, 1, 0, 2, Q("1.75 in")))
sketch14.addConstraint(Sketcher.Constraint("DistanceX", 3, 3, -1, 1, Q("1.1875 in")))
sketch14.addConstraint(Sketcher.Constraint("DistanceY", 4, 2, 4, 1, 4.967242))
sketch14.addConstraint(Sketcher.Constraint("DistanceX", 0, 1, 0, 2, 27.220244))
pocket12 = body.newObject("PartDesign::Pocket", "Pocket011")
pocket12.Profile = sketch14
pocket12.Type = "UpToFirst"
pocket12.Reversed = True

# Sketch on XZ plane
sketch15 = body.newObject("Sketcher::SketchObject", "Sketch014")
sketch15.AttachmentSupport = (doc.getObject("XZ_Plane"), [""])
sketch15.MapMode = "FlatFace"
sketch15.AttachmentOffset = App.Placement(V(0, 0, -0.25 * 25.4), App.Rotation())
sketch15.addGeometry(Part.LineSegment(V(28.6, 25.3, 0), V(28.6, 30.2, 0)), False)
sketch15.addGeometry(Part.ArcOfCircle(Part.Circle(V(30.2, 30.2, 0), V(0, 0, 1), 1.6), math.radians(146), math.radians(180)), False)
sketch15.addGeometry(Part.ArcOfCircle(Part.Circle(V(0, 50.8, 0), V(0, 0, 1), 34.9), math.radians(-34), math.radians(-13)), False)
sketch15.addGeometry(Part.ArcOfCircle(Part.Circle(V(35.6, 42.9, 0), V(0, 0, 1), 1.6), math.radians(90), math.radians(167)), False)
sketch15.addGeometry(Part.LineSegment(V(35.6, 44.5, 0), V(62.9, 44.5, 0)), False)
sketch15.addGeometry(Part.ArcOfCircle(Part.Circle(V(62.9, 42.9, 0), V(0, 0, 1), 1.6), math.radians(-62), math.radians(90)), False)
sketch15.addGeometry(Part.LineSegment(V(63.6, 41.5, 0), V(30.9, 23.9, 0)), False)
sketch15.addGeometry(Part.ArcOfCircle(Part.Circle(V(30.2, 25.3, 0), V(0, 0, 1), 1.6), math.radians(180), math.radians(298)), False)
sketch15.addConstraint(Sketcher.Constraint("Tangent", 0, 2, 1, 2))
sketch15.addConstraint(Sketcher.Constraint("Tangent", 1, 1, 2, 1))
sketch15.addConstraint(Sketcher.Constraint("Tangent", 2, 2, 3, 2))
sketch15.addConstraint(Sketcher.Constraint("Tangent", 3, 1, 4, 1))
sketch15.addConstraint(Sketcher.Constraint("Tangent", 4, 2, 5, 2))
sketch15.addConstraint(Sketcher.Constraint("Tangent", 5, 1, 6, 1))
sketch15.addConstraint(Sketcher.Constraint("Tangent", 6, 2, 7, 2))
sketch15.addConstraint(Sketcher.Constraint("Tangent", 7, 1, 0, 1))
sketch15.addConstraint(Sketcher.Constraint("Vertical", 0))
sketch15.addConstraint(Sketcher.Constraint("Horizontal", 4))
sketch15.addConstraint(Sketcher.Constraint("Equal", 1, 3))
sketch15.addConstraint(Sketcher.Constraint("Equal", 3, 5))
sketch15.addConstraint(Sketcher.Constraint("Equal", 5, 7))
sketch15.addConstraint(Sketcher.Constraint("PointOnObject", 2, 3, -2))
sketch15.addConstraint(Sketcher.Constraint("DistanceY", -1, 1, 2, 3, Q("2 in")))
sketch15.addConstraint(Sketcher.Constraint("Radius", 1, Q("0.0625 in")))
sketch15.addConstraint(Sketcher.Constraint("Radius", 2, Q("1.375 in")))
sketch15.addConstraint(Sketcher.Constraint("DistanceY", -1, 1, 3, 1, Q("1.75 in")))
sketch15.addConstraint(Sketcher.Constraint("DistanceX", -1, 1, 1, 3, Q("1.1875 in")))
sketch15.addConstraint(Sketcher.Constraint("DistanceY", 0, 1, 0, 2, 4.967242))
sketch15.addConstraint(Sketcher.Constraint("DistanceX", 4, 1, 4, 2, 27.220244))
pocket13 = body.newObject("PartDesign::Pocket", "Pocket012")
pocket13.Profile = sketch15
pocket13.Type = "UpToFirst"
pocket13.Reversed = True

doc.recompute()
